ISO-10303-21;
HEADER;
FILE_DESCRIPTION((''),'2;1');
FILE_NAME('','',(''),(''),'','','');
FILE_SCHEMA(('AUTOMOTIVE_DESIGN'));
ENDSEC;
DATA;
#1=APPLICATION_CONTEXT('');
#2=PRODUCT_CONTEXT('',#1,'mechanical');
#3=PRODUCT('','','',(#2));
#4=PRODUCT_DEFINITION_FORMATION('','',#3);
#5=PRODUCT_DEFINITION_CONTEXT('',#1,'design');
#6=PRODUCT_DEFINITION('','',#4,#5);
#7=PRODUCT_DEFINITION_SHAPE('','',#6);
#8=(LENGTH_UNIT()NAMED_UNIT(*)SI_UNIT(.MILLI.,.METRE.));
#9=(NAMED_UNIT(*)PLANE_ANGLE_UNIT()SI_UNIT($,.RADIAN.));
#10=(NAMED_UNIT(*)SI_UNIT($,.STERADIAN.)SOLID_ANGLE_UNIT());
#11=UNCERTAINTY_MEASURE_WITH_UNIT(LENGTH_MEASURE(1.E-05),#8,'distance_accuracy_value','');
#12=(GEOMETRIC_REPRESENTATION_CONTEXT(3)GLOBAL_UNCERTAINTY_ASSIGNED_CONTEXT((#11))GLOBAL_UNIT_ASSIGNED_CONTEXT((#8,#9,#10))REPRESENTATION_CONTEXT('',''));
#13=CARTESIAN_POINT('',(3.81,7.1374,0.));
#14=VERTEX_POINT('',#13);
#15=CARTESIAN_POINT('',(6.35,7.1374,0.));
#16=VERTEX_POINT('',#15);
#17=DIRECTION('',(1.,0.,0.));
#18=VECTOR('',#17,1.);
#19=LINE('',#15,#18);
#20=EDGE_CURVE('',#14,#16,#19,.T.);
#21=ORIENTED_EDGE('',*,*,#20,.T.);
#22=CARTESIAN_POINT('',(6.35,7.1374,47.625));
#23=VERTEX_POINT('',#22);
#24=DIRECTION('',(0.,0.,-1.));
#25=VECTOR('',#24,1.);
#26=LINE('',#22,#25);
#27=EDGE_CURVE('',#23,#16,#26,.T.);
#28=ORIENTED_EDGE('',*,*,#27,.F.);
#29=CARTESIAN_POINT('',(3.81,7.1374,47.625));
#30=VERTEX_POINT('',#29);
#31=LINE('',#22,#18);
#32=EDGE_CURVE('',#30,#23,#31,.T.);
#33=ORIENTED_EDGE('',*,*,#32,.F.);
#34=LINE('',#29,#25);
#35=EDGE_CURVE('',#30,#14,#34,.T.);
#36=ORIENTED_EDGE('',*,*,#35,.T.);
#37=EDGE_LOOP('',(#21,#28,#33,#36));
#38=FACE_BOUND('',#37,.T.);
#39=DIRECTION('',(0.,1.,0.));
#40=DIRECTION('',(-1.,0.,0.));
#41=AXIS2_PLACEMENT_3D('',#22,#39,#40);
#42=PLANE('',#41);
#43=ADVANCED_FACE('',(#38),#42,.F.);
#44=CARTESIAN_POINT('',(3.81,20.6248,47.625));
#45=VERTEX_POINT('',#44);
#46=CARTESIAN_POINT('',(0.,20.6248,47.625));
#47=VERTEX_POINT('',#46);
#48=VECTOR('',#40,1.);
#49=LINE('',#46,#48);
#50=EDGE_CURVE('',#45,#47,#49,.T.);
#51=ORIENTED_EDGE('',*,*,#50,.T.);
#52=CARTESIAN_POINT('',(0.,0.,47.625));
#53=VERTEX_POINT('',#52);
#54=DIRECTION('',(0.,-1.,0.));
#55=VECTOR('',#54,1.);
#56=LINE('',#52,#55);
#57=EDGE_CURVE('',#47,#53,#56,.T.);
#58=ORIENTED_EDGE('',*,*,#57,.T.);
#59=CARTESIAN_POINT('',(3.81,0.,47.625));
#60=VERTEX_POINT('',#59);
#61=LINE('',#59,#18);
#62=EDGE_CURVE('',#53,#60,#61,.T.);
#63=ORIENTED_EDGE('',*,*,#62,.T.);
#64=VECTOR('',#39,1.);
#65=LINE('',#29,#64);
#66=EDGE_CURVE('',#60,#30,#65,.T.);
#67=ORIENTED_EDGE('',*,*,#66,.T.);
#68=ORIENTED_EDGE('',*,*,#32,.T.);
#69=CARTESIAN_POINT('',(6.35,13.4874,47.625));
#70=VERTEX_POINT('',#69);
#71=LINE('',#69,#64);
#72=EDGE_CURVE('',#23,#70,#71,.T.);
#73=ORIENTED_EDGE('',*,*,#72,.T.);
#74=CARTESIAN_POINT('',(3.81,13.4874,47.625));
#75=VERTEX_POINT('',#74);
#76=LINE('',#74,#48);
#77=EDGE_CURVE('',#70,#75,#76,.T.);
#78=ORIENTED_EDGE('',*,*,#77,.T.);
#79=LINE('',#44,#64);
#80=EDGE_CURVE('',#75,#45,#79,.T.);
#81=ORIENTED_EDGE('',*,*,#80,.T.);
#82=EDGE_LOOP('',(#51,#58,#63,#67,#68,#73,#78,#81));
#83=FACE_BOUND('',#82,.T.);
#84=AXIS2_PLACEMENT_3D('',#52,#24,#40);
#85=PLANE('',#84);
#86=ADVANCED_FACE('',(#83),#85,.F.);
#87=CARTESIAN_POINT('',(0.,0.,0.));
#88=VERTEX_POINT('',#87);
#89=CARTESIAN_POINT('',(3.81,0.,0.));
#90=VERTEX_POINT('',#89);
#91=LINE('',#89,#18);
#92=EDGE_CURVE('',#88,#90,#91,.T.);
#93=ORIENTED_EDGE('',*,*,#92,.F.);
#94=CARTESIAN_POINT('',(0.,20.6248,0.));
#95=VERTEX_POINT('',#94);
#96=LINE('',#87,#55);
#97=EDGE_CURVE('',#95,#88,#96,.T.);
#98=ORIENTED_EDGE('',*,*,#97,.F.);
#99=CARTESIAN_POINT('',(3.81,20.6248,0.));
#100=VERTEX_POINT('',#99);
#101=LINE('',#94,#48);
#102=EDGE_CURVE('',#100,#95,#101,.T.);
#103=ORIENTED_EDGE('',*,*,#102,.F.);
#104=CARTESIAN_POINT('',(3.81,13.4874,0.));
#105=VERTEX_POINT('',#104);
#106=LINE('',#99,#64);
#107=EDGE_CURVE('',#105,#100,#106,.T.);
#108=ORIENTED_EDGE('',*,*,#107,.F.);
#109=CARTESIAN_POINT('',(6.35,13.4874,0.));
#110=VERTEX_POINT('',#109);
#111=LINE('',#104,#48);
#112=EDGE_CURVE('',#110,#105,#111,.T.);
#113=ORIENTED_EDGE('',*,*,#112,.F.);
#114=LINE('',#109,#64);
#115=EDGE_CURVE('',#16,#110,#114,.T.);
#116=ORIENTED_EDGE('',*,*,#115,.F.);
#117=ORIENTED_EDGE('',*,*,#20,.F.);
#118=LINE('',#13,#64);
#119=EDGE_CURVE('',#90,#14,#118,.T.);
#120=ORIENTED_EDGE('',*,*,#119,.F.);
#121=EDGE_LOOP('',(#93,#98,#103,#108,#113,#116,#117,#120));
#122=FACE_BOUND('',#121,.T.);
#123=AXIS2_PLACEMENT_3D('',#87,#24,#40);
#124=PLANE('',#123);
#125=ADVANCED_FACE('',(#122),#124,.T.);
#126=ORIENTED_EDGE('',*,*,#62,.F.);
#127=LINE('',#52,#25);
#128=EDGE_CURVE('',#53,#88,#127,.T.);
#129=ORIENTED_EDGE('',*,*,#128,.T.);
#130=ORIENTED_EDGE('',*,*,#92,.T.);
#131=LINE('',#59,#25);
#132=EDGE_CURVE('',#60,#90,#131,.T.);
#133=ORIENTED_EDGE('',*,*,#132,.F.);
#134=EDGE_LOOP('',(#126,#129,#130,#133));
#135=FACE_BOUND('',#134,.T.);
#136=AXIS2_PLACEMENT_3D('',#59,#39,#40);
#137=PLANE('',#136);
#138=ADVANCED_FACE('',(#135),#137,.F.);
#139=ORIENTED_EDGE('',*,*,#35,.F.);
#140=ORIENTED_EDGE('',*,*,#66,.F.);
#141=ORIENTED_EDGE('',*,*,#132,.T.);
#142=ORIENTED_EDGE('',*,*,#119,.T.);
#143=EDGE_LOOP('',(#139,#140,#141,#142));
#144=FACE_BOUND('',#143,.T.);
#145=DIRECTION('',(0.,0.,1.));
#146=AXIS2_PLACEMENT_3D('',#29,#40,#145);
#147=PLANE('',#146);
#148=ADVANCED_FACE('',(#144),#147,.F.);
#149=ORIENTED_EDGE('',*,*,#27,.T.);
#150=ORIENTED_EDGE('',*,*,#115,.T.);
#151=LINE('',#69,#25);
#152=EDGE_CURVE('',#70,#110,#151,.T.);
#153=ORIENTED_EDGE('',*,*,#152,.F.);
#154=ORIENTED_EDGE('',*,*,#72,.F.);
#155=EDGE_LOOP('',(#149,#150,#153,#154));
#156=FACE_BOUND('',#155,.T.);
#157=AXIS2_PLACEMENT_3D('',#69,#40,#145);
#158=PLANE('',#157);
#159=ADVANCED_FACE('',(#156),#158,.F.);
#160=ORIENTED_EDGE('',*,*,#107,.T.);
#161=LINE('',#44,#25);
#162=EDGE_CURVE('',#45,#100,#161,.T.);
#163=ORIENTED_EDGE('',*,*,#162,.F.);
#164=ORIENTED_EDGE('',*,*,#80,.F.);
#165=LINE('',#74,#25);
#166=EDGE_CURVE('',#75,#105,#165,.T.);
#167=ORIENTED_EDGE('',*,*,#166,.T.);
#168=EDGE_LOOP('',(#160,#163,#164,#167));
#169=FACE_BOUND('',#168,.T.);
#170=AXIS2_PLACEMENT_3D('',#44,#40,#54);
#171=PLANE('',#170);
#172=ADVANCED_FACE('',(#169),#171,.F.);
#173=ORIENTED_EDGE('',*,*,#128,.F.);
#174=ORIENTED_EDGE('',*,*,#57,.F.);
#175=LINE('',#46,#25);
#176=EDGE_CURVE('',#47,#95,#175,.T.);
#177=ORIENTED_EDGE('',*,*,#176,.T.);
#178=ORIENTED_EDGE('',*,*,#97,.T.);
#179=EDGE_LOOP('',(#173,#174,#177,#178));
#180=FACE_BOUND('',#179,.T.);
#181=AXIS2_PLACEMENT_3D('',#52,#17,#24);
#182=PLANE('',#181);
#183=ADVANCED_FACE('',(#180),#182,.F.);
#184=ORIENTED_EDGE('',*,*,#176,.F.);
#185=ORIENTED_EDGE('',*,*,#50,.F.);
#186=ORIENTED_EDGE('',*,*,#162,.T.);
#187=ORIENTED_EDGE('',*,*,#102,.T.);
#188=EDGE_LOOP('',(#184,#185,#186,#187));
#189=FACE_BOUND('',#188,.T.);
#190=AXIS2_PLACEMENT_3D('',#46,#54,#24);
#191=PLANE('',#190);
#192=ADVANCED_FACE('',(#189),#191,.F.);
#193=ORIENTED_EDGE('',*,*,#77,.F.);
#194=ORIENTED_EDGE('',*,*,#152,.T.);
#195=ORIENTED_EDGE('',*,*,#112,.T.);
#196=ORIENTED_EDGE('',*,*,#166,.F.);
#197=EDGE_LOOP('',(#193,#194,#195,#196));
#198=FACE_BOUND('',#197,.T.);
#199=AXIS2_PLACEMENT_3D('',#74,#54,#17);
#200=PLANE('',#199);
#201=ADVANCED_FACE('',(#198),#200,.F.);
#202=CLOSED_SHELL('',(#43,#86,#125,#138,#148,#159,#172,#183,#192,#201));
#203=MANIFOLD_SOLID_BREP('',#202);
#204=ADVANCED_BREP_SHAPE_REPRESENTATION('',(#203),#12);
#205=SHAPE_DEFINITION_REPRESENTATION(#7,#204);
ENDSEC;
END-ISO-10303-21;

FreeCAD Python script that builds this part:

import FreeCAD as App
import Part
import Sketcher
from FreeCAD import Vector
Q = App.Units.Quantity

doc = App.newDocument("Part")
body = doc.addObject("PartDesign::Body", "Body")

sketch1 = doc.addObject("Sketcher::SketchObject", "Sketch")
body.addObject(sketch1)
sketch1.AttachmentSupport = (doc.XY_Plane, [""])
sketch1.MapMode = "FlatFace"
sketch1.addGeometry([
    Part.LineSegment(Vector(0, 20.6, 0), Vector(0, 0, 0)),
    Part.LineSegment(Vector(0, 0, 0), Vector(3.8, 0, 0)),
    Part.LineSegment(Vector(3.8, 0, 0), Vector(3.8, 7.1, 0)),
    Part.LineSegment(Vector(3.8, 7.1, 0), Vector(6.3, 7.1, 0)),
    Part.LineSegment(Vector(6.3, 7.1, 0), Vector(6.3, 13.5, 0)),
    Part.LineSegment(Vector(6.3, 13.5, 0), Vector(3.8, 13.5, 0)),
    Part.LineSegment(Vector(3.8, 13.5, 0), Vector(3.8, 20.6, 0)),
    Part.LineSegment(Vector(3.8, 20.6, 0), Vector(0, 20.6, 0)),
], False)
sketch1.addConstraint([
    Sketcher.Constraint("Coincident", 0, 2, 1, 1),
    Sketcher.Constraint("Coincident", 1, 2, 2, 1),
    Sketcher.Constraint("Coincident", 2, 2, 3, 1),
    Sketcher.Constraint("Coincident", 3, 2, 4, 1),
    Sketcher.Constraint("Coincident", 4, 2, 5, 1),
    Sketcher.Constraint("Coincident", 5, 2, 6, 1),
    Sketcher.Constraint("Coincident", 6, 2, 7, 1),
    Sketcher.Constraint("Coincident", 7, 2, 0, 1),
    Sketcher.Constraint("Vertical", 0),
    Sketcher.Constraint("Horizontal", 1),
    Sketcher.Constraint("Vertical", 2),
    Sketcher.Constraint("Horizontal", 3),
    Sketcher.Constraint("Vertical", 4),
    Sketcher.Constraint("Horizontal", 5),
    Sketcher.Constraint("Vertical", 6),
    Sketcher.Constraint("Horizontal", 7),
    Sketcher.Constraint("Coincident", 0, 2, -1, 1),
    Sketcher.Constraint("Vertical", 2, 2, 5, 2),
    Sketcher.Constraint("Equal", 2, 6),
    Sketcher.Constraint("DistanceX", 3, 1, 3, 2, Q("0.1 in")),
    Sketcher.Constraint("DistanceX", 1, 1, 1, 2, Q("0.15 in")),
    Sketcher.Constraint("DistanceY", 4, 1, 4, 2, Q("0.25 in")),
    Sketcher.Constraint("DistanceY", 0, 2, 0, 1, Q("0.812 in")),
])
pad1 = doc.addObject("PartDesign::Pad", "Pad")
body.addObject(pad1)
pad1.Profile = sketch1
pad1.Length = Q("1.875 in")

doc.recompute()
